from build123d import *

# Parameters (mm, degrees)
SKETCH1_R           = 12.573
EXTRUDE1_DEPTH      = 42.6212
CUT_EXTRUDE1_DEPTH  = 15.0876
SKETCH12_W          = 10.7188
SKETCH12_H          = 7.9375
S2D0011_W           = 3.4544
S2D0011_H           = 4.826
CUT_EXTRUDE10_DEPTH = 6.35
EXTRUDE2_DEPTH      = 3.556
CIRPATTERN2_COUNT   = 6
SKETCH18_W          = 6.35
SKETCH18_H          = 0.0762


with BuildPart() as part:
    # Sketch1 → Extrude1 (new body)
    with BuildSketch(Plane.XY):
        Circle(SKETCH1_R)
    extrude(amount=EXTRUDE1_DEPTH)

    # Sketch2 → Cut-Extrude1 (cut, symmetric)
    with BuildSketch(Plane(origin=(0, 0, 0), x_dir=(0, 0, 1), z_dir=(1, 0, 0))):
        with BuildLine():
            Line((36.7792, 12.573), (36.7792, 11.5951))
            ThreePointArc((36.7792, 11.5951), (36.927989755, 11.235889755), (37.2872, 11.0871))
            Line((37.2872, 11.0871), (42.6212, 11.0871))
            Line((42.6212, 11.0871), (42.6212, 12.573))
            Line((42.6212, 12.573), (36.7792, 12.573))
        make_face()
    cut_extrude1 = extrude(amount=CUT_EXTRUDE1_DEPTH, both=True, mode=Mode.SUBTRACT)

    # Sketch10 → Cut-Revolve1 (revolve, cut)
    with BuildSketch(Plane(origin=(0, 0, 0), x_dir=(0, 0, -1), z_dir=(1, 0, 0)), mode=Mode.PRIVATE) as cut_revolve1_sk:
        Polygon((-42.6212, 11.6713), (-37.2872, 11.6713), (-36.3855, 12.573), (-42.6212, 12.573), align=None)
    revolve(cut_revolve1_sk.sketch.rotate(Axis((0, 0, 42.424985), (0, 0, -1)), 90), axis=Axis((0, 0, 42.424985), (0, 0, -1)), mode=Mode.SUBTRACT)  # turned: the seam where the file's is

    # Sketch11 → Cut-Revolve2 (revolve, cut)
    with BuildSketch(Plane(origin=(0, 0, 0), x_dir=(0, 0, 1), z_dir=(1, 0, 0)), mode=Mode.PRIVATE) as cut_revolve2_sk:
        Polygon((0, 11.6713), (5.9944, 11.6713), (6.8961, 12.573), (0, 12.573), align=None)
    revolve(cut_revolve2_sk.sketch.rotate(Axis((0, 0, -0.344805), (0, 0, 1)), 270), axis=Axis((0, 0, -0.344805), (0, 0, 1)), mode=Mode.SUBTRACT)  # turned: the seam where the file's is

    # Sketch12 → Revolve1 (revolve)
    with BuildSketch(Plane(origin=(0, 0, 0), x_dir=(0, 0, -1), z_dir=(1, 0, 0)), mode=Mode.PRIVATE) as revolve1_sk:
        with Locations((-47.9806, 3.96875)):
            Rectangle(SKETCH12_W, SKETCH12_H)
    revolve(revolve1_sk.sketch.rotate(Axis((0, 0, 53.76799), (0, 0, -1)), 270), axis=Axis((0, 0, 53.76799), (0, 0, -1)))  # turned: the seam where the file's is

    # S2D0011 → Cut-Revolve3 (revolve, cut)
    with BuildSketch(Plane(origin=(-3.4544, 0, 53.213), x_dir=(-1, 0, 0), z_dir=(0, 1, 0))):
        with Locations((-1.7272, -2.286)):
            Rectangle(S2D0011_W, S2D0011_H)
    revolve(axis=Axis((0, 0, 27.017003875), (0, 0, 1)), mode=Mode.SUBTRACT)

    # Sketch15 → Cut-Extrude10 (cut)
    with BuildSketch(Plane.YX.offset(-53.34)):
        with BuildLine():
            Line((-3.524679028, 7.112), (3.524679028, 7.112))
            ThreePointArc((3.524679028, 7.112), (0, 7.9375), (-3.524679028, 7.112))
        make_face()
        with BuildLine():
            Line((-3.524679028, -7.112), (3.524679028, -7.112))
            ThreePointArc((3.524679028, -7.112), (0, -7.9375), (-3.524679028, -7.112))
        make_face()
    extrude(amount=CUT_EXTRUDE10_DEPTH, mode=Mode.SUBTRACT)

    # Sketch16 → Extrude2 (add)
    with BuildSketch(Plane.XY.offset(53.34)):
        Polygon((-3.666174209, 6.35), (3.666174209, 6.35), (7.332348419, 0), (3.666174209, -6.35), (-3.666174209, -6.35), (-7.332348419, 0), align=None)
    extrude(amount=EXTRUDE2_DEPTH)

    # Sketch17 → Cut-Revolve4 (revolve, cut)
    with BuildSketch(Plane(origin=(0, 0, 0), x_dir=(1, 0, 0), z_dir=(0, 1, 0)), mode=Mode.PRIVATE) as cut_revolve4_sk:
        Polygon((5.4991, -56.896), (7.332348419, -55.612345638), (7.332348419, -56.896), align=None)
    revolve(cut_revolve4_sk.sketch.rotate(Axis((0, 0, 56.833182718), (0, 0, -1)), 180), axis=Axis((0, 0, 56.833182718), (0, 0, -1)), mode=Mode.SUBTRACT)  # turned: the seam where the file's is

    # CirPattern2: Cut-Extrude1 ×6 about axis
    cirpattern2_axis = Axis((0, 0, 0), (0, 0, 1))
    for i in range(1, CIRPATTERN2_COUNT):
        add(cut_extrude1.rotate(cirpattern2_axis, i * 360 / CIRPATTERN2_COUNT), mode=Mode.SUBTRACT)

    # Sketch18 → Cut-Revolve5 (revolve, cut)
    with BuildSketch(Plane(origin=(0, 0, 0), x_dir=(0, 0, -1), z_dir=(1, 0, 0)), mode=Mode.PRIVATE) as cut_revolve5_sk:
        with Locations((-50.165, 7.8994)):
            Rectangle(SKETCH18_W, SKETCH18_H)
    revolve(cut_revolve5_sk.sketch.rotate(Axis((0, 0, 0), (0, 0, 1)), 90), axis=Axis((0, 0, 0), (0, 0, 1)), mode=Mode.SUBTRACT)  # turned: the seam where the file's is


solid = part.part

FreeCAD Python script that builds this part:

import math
import FreeCAD as App
import Part
import Sketcher
from FreeCAD import Vector
Q = App.Units.Quantity

doc = App.newDocument("Part")
body = doc.addObject("PartDesign::Body", "Body")

sketch1 = doc.addObject("Sketcher::SketchObject", "Sketch")
body.addObject(sketch1)
sketch1.AttachmentSupport = (doc.XY_Plane, [""])
sketch1.MapMode = "FlatFace"
sketch1.addGeometry(Part.Circle(Vector(0, 0, 0), Vector(0, 0, 1), 13), False)
sketch1.addConstraint(Sketcher.Constraint("Coincident", 0, 3, -1, 1))
sketch1.addConstraint(Sketcher.Constraint("Diameter", 0, Q("0.99 in")))
pad1 = doc.addObject("PartDesign::Pad", "Pad")
body.addObject(pad1)
pad1.Profile = sketch1
pad1.Length = Q("1.678 in")

sketch2 = doc.addObject("Sketcher::SketchObject", "Sketch001")
body.addObject(sketch2)
sketch2.AttachmentSupport = (doc.YZ_Plane, [""])
sketch2.MapMode = "FlatFace"
sketch2.addGeometry(Part.LineSegment(Vector(-12.6, 36.8, 0), Vector(-11.6, 36.8, 0)), False)
sketch2.addGeometry(Part.ArcOfCircle(Part.Circle(Vector(-11.6, 37.3, 0), Vector(0, 0, 1), 0.5), math.radians(-90), math.radians(0)), False)
sketch2.addGeometry(Part.LineSegment(Vector(-11.1, 37.3, 0), Vector(-11.1, 42.6, 0)), False)
sketch2.addGeometry(Part.LineSegment(Vector(-11.1, 42.6, 0), Vector(-12.6, 42.6, 0)), False)
sketch2.addGeometry(Part.LineSegment(Vector(-12.6, 42.6, 0), Vector(-12.6, 36.8, 0)), False)
sketch2.addConstraint(Sketcher.Constraint("Tangent", 0, 2, 1, 1))
sketch2.addConstraint(Sketcher.Constraint("Tangent", 1, 2, 2, 1))
sketch2.addConstraint(Sketcher.Constraint("Coincident", 2, 2, 3, 1))
sketch2.addConstraint(Sketcher.Constraint("Coincident", 3, 2, 4, 1))
sketch2.addConstraint(Sketcher.Constraint("Coincident", 4, 2, 0, 1))
sketch2.addConstraint(Sketcher.Constraint("Horizontal", 0))
sketch2.addConstraint(Sketcher.Constraint("Vertical", 2))
sketch2.addConstraint(Sketcher.Constraint("Horizontal", 3))
sketch2.addConstraint(Sketcher.Constraint("Vertical", 4))
sketch2.addConstraint(Sketcher.Constraint("Radius", 1, Q("0.02 in")))
sketch2.addConstraint(Sketcher.Constraint("DistanceY", 2, 1, 2, 2, Q("0.21 in")))
sketch2.addConstraint(Sketcher.Constraint("DistanceX", 0, 1, 0, 2, Q("0.0385 in")))
sketch2.addConstraint(Sketcher.Constraint("DistanceY", -1, 1, 1, 3, Q("1.468 in")))
sketch2.addConstraint(Sketcher.Constraint("DistanceX", 3, 2, -1, 1, Q("0.495 in")))
pocket1 = doc.addObject("PartDesign::Pocket", "Pocket")
body.addObject(pocket1)
pocket1.Profile = sketch2
pocket1.Length = Q("1.188 in")
pocket1.Midplane = True

sketch3 = doc.addObject("Sketcher::SketchObject", "Sketch002")
body.addObject(sketch3)
sketch3.AttachmentSupport = (doc.YZ_Plane, [""])
sketch3.MapMode = "FlatFace"
sketch3.addGeometry(Part.LineSegment(Vector(11.7, 42.6, 0), Vector(11.7, 37.3, 0)), False)
sketch3.addGeometry(Part.LineSegment(Vector(11.7, 37.3, 0), Vector(12.6, 36.4, 0)), False)
sketch3.addGeometry(Part.LineSegment(Vector(12.6, 36.4, 0), Vector(12.6, 42.6, 0)), False)
sketch3.addGeometry(Part.LineSegment(Vector(12.6, 42.6, 0), Vector(11.7, 42.6, 0)), False)
sketch3.addConstraint(Sketcher.Constraint("Coincident", 0, 2, 1, 1))
sketch3.addConstraint(Sketcher.Constraint("Coincident", 1, 2, 2, 1))
sketch3.addConstraint(Sketcher.Constraint("Coincident", 2, 2, 3, 1))
sketch3.addConstraint(Sketcher.Constraint("Coincident", 3, 2, 0, 1))
sketch3.addConstraint(Sketcher.Constraint("Vertical", 0))
sketch3.addConstraint(Sketcher.Constraint("Vertical", 2))
sketch3.addConstraint(Sketcher.Constraint("Horizontal", 3))
sketch3.addConstraint(Sketcher.Constraint("Angle", 1, Q("-45 deg")))
sketch3.addConstraint(Sketcher.Constraint("DistanceY", 0, 2, 0, 1, Q("0.21 in")))
sketch3.addConstraint(Sketcher.Constraint("DistanceX", 3, 2, 3, 1, Q("0.0355 in")))
sketch3.addConstraint(Sketcher.Constraint("DistanceY", -1, 1, 0, 2, Q("1.468 in")))
sketch3.addConstraint(Sketcher.Constraint("DistanceX", -1, 1, 1, 2, Q("0.495 in")))
groove = doc.addObject("PartDesign::Groove", "Groove")
body.addObject(groove)
groove.Profile = sketch3
groove.ReferenceAxis = (sketch3, ["V_Axis"])
groove.Angle = 360

sketch4 = doc.addObject("Sketcher::SketchObject", "Sketch003")
body.addObject(sketch4)
sketch4.AttachmentSupport = (doc.YZ_Plane, [""])
sketch4.MapMode = "FlatFace"
sketch4.addGeometry(Part.LineSegment(Vector(-11.7, 0, 0), Vector(-11.7, 6, 0)), False)
sketch4.addGeometry(Part.LineSegment(Vector(-11.7, 6, 0), Vector(-12.6, 6.9, 0)), False)
sketch4.addGeometry(Part.LineSegment(Vector(-12.6, 6.9, 0), Vector(-12.6, 0, 0)), False)
sketch4.addGeometry(Part.LineSegment(Vector(-12.6, 0, 0), Vector(-11.7, 0, 0)), False)
sketch4.addConstraint(Sketcher.Constraint("Coincident", 0, 2, 1, 1))
sketch4.addConstraint(Sketcher.Constraint("Coincident", 1, 2, 2, 1))
sketch4.addConstraint(Sketcher.Constraint("Coincident", 2, 2, 3, 1))
sketch4.addConstraint(Sketcher.Constraint("Coincident", 3, 2, 0, 1))
sketch4.addConstraint(Sketcher.Constraint("Vertical", 0))
sketch4.addConstraint(Sketcher.Constraint("Vertical", 2))
sketch4.addConstraint(Sketcher.Constraint("Horizontal", 3))
sketch4.addConstraint(Sketcher.Constraint("PointOnObject", 2, 2, -1))
sketch4.addConstraint(Sketcher.Constraint("Angle", 1, Q("135 deg")))
sketch4.addConstraint(Sketcher.Constraint("DistanceY", 0, 1, 0, 2, Q("0.236 in")))
sketch4.addConstraint(Sketcher.Constraint("DistanceX", 3, 1, 3, 2, Q("0.0355 in")))
sketch4.addConstraint(Sketcher.Constraint("DistanceX", 1, 2, -1, 1, Q("0.495 in")))
groove2 = doc.addObject("PartDesign::Groove", "Groove001")
body.addObject(groove2)
groove2.Profile = sketch4
groove2.ReferenceAxis = (sketch4, ["V_Axis"])
groove2.Angle = 360

sketch5 = doc.addObject("Sketcher::SketchObject", "Sketch004")
body.addObject(sketch5)
sketch5.AttachmentSupport = (doc.YZ_Plane, [""])
sketch5.MapMode = "FlatFace"
sketch5.addGeometry(Part.LineSegment(Vector(8, 53, 0), Vector(0, 53, 0)), False)
sketch5.addGeometry(Part.LineSegment(Vector(0, 53, 0), Vector(0, 43, 0)), False)
sketch5.addGeometry(Part.LineSegment(Vector(0, 43, 0), Vector(8, 43, 0)), False)
sketch5.addGeometry(Part.LineSegment(Vector(8, 43, 0), Vector(8, 53, 0)), False)
sketch5.addConstraint(Sketcher.Constraint("Coincident", 0, 2, 1, 1))
sketch5.addConstraint(Sketcher.Constraint("Coincident", 1, 2, 2, 1))
sketch5.addConstraint(Sketcher.Constraint("Coincident", 2, 2, 3, 1))
sketch5.addConstraint(Sketcher.Constraint("Coincident", 3, 2, 0, 1))
sketch5.addConstraint(Sketcher.Constraint("Horizontal", 0))
sketch5.addConstraint(Sketcher.Constraint("Vertical", 1))
sketch5.addConstraint(Sketcher.Constraint("Horizontal", 2))
sketch5.addConstraint(Sketcher.Constraint("Vertical", 3))
sketch5.addConstraint(Sketcher.Constraint("PointOnObject", 0, 2, -2))
sketch5.addConstraint(Sketcher.Constraint("DistanceY", -1, 1, 0, 2, Q("2.1 in")))
sketch5.addConstraint(Sketcher.Constraint("DistanceX", 0, 2, 0, 1, Q("0.3125 in")))
sketch5.addConstraint(Sketcher.Constraint("DistanceY", 1, 2, 1, 1, Q("0.422 in")))
revolution = doc.addObject("PartDesign::Revolution", "Revolution")
body.addObject(revolution)
revolution.Profile = sketch5
revolution.ReferenceAxis = (sketch5, ["V_Axis"])
revolution.Angle = 360

sketch6 = doc.addObject("Sketcher::SketchObject", "Sketch005")
body.addObject(sketch6)
sketch6.AttachmentSupport = (doc.XZ_Plane, [""])
sketch6.MapMode = "FlatFace"
sketch6.addGeometry(Part.LineSegment(Vector(0, 53.3, 0), Vector(0, 48.5, 0)), False)
sketch6.addGeometry(Part.LineSegment(Vector(0, 48.5, 0), Vector(-3.5, 48.5, 0)), False)
sketch6.addGeometry(Part.LineSegment(Vector(-3.5, 48.5, 0), Vector(-3.5, 53.3, 0)), False)
sketch6.addGeometry(Part.LineSegment(Vector(-3.5, 53.3, 0), Vector(0, 53.3, 0)), False)
sketch6.addConstraint(Sketcher.Constraint("Coincident", 0, 2, 1, 1))
sketch6.addConstraint(Sketcher.Constraint("Coincident", 1, 2, 2, 1))
sketch6.addConstraint(Sketcher.Constraint("Coincident", 2, 2, 3, 1))
sketch6.addConstraint(Sketcher.Constraint("Coincident", 3, 2, 0, 1))
sketch6.addConstraint(Sketcher.Constraint("Vertical", 0))
sketch6.addConstraint(Sketcher.Constraint("Horizontal", 1))
sketch6.addConstraint(Sketcher.Constraint("Vertical", 2))
sketch6.addConstraint(Sketcher.Constraint("Horizontal", 3))
sketch6.addConstraint(Sketcher.Constraint("PointOnObject", 0, 2, -2))
sketch6.addConstraint(Sketcher.Constraint("DistanceY", 0, 2, 0, 1, Q("0.19 in")))
sketch6.addConstraint(Sketcher.Constraint("DistanceY", -1, 1, 2, 2, Q("2.1 in")))
sketch6.addConstraint(Sketcher.Constraint("DistanceX", 1, 2, 1, 1, Q("0.136 in")))
groove3 = doc.addObject("PartDesign::Groove", "Groove002")
body.addObject(groove3)
groove3.Profile = sketch6
groove3.ReferenceAxis = (sketch6, ["V_Axis"])
groove3.Angle = 360

sketch7 = doc.addObject("Sketcher::SketchObject", "Sketch006")
body.addObject(sketch7)
sketch7.AttachmentSupport = (doc.XY_Plane, [""])
sketch7.MapMode = "FlatFace"
sketch7.AttachmentOffset = App.Placement(Vector(0, 0, 2.1 * 25.4), App.Rotation())
sketch7.addGeometry(Part.LineSegment(Vector(7, -4, 0), Vector(7, 4, 0)), False)
sketch7.addGeometry(Part.ArcOfCircle(Part.Circle(Vector(0, 0, 0), Vector(0, 0, 1), 8), math.radians(-26), math.radians(26)), False)
sketch7.addGeometry(Part.LineSegment(Vector(-7, 4, 0), Vector(-7, -4, 0)), False)
sketch7.addGeometry(Part.ArcOfCircle(Part.Circle(Vector(0, 0, 0), Vector(0, 0, 1), 8), math.radians(154), math.radians(206)), False)
sketch7.addConstraint(Sketcher.Constraint("Coincident", 0, 1, 1, 1))
sketch7.addConstraint(Sketcher.Constraint("Coincident", 1, 2, 0, 2))
sketch7.addConstraint(Sketcher.Constraint("Coincident", 2, 1, 3, 1))
sketch7.addConstraint(Sketcher.Constraint("Coincident", 3, 2, 2, 2))
sketch7.addConstraint(Sketcher.Constraint("Vertical", 0))
sketch7.addConstraint(Sketcher.Constraint("Vertical", 2))
sketch7.addConstraint(Sketcher.Constraint("Coincident", 1, 3, -1, 1))
sketch7.addConstraint(Sketcher.Constraint("Coincident", 3, 3, -1, 1))
sketch7.addConstraint(Sketcher.Constraint("Equal", 1, 3))
sketch7.addConstraint(Sketcher.Constraint("Horizontal", 1, 2, 2, 1))
sketch7.addConstraint(Sketcher.Constraint("Radius", 1, Q("0.3125 in")))
sketch7.addConstraint(Sketcher.Constraint("DistanceX", -1, 1, 0, 1, Q("0.28 in")))
pocket2 = doc.addObject("PartDesign::Pocket", "Pocket001")
body.addObject(pocket2)
pocket2.Profile = sketch7
pocket2.Length = Q("0.25 in")

sketch8 = doc.addObject("Sketcher::SketchObject", "Sketch007")
body.addObject(sketch8)
sketch8.AttachmentSupport = (doc.XY_Plane, [""])
sketch8.MapMode = "FlatFace"
sketch8.AttachmentOffset = App.Placement(Vector(0, 0, 2.1 * 25.4), App.Rotation())
sketch8.addGeometry(Part.LineSegment(Vector(4, 6, 0), Vector(-4, 6, 0)), False)
sketch8.addGeometry(Part.LineSegment(Vector(-4, 6, 0), Vector(-7, 0, 0)), False)
sketch8.addGeometry(Part.LineSegment(Vector(-7, 0, 0), Vector(-4, -6, 0)), False)
sketch8.addGeometry(Part.LineSegment(Vector(-4, -6, 0), Vector(4, -6, 0)), False)
sketch8.addGeometry(Part.LineSegment(Vector(4, -6, 0), Vector(7, 0, 0)), False)
sketch8.addGeometry(Part.LineSegment(Vector(7, 0, 0), Vector(4, 6, 0)), False)
sketch8.addConstraint(Sketcher.Constraint("Coincident", 0, 2, 1, 1))
sketch8.addConstraint(Sketcher.Constraint("Coincident", 1, 2, 2, 1))
sketch8.addConstraint(Sketcher.Constraint("Coincident", 2, 2, 3, 1))
sketch8.addConstraint(Sketcher.Constraint("Coincident", 3, 2, 4, 1))
sketch8.addConstraint(Sketcher.Constraint("Coincident", 4, 2, 5, 1))
sketch8.addConstraint(Sketcher.Constraint("Coincident", 5, 2, 0, 1))
sketch8.addConstraint(Sketcher.Constraint("Horizontal", 0))
sketch8.addConstraint(Sketcher.Constraint("Horizontal", 3))
sketch8.addConstraint(Sketcher.Constraint("Symmetric", 0, 2, 3, 2, -1, 1))
sketch8.addConstraint(Sketcher.Constraint("Symmetric", 1, 2, 4, 2, -1, 1))
sketch8.addConstraint(Sketcher.Constraint("PointOnObject", 1, 2, -1))
sketch8.addConstraint(Sketcher.Constraint("Parallel", 2, 5))
sketch8.addConstraint(Sketcher.Constraint("Vertical", 0, 2, 2, 2))
sketch8.addConstraint(Sketcher.Constraint("Angle", 1, Q("-120 deg")))
sketch8.addConstraint(Sketcher.Constraint("DistanceY", 2, 2, 0, 2, Q("0.5 in")))
sketch8.addConstraint(Sketcher.Constraint("DistanceX", 0, 2, 0, 1, Q("7.332348 mm")))
pad2 = doc.addObject("PartDesign::Pad", "Pad001")
body.addObject(pad2)
pad2.Profile = sketch8
pad2.Length = Q("0.14 in")

sketch9 = doc.addObject("Sketcher::SketchObject", "Sketch008")
body.addObject(sketch9)
sketch9.AttachmentSupport = (doc.XZ_Plane, [""])
sketch9.MapMode = "FlatFace"
sketch9.addGeometry(Part.LineSegment(Vector(7.3, 55.6, 0), Vector(5.5, 56.9, 0)), False)
sketch9.addGeometry(Part.LineSegment(Vector(5.5, 56.9, 0), Vector(7.3, 56.9, 0)), False)
sketch9.addGeometry(Part.LineSegment(Vector(7.3, 56.9, 0), Vector(7.3, 55.6, 0)), False)
sketch9.addConstraint(Sketcher.Constraint("Coincident", 0, 2, 1, 1))
sketch9.addConstraint(Sketcher.Constraint("Coincident", 1, 2, 2, 1))
sketch9.addConstraint(Sketcher.Constraint("Coincident", 2, 2, 0, 1))
sketch9.addConstraint(Sketcher.Constraint("Horizontal", 1))
sketch9.addConstraint(Sketcher.Constraint("Vertical", 2))
sketch9.addConstraint(Sketcher.Constraint("Angle", 0, Q("145 deg")))
sketch9.addConstraint(Sketcher.Constraint("DistanceY", -1, 1, 0, 2, Q("2.24 in")))
sketch9.addConstraint(Sketcher.Constraint("DistanceX", -1, 1, 0, 2, Q("0.2165 in")))
sketch9.addConstraint(Sketcher.Constraint("DistanceX", 1, 1, 1, 2, Q("1.833248 mm")))
groove4 = doc.addObject("PartDesign::Groove", "Groove003")
body.addObject(groove4)
groove4.Profile = sketch9
groove4.ReferenceAxis = (sketch9, ["V_Axis"])
groove4.Angle = 360
doc.recompute()

polarpattern = doc.addObject("PartDesign::PolarPattern", "PolarPattern")
body.addObject(polarpattern)
polarpattern.Originals = [pocket1]
polarpattern.Axis = (doc.Z_Axis, [""])
polarpattern.Angle = 360
polarpattern.Occurrences = 6
body.Tip = polarpattern

sketch10 = doc.addObject("Sketcher::SketchObject", "Sketch009")
body.addObject(sketch10)
sketch10.AttachmentSupport = (doc.YZ_Plane, [""])
sketch10.MapMode = "FlatFace"
sketch10.addGeometry(Part.LineSegment(Vector(7.94, 53.34, 0), Vector(7.86, 53.34, 0)), False)
sketch10.addGeometry(Part.LineSegment(Vector(7.86, 53.34, 0), Vector(7.86, 46.99, 0)), False)
sketch10.addGeometry(Part.LineSegment(Vector(7.86, 46.99, 0), Vector(7.94, 46.99, 0)), False)
sketch10.addGeometry(Part.LineSegment(Vector(7.94, 46.99, 0), Vector(7.94, 53.34, 0)), False)
sketch10.addConstraint(Sketcher.Constraint("Coincident", 0, 2, 1, 1))
sketch10.addConstraint(Sketcher.Constraint("Coincident", 1, 2, 2, 1))
sketch10.addConstraint(Sketcher.Constraint("Coincident", 2, 2, 3, 1))
sketch10.addConstraint(Sketcher.Constraint("Coincident", 3, 2, 0, 1))
sketch10.addConstraint(Sketcher.Constraint("Horizontal", 0))
sketch10.addConstraint(Sketcher.Constraint("Vertical", 1))
sketch10.addConstraint(Sketcher.Constraint("Horizontal", 2))
sketch10.addConstraint(Sketcher.Constraint("Vertical", 3))
sketch10.addConstraint(Sketcher.Constraint("DistanceY", 1, 2, 1, 1, Q("0.25 in")))
sketch10.addConstraint(Sketcher.Constraint("DistanceY", -1, 1, 0, 2, Q("2.1 in")))
sketch10.addConstraint(Sketcher.Constraint("DistanceX", 0, 2, 0, 1, Q("0.003 in")))
sketch10.addConstraint(Sketcher.Constraint("DistanceX", -1, 1, 2, 2, Q("0.3125 in")))
groove5 = doc.addObject("PartDesign::Groove", "Groove004")
body.addObject(groove5)
groove5.Profile = sketch10
groove5.ReferenceAxis = (sketch10, ["V_Axis"])
groove5.Angle = 360

doc.recompute()
